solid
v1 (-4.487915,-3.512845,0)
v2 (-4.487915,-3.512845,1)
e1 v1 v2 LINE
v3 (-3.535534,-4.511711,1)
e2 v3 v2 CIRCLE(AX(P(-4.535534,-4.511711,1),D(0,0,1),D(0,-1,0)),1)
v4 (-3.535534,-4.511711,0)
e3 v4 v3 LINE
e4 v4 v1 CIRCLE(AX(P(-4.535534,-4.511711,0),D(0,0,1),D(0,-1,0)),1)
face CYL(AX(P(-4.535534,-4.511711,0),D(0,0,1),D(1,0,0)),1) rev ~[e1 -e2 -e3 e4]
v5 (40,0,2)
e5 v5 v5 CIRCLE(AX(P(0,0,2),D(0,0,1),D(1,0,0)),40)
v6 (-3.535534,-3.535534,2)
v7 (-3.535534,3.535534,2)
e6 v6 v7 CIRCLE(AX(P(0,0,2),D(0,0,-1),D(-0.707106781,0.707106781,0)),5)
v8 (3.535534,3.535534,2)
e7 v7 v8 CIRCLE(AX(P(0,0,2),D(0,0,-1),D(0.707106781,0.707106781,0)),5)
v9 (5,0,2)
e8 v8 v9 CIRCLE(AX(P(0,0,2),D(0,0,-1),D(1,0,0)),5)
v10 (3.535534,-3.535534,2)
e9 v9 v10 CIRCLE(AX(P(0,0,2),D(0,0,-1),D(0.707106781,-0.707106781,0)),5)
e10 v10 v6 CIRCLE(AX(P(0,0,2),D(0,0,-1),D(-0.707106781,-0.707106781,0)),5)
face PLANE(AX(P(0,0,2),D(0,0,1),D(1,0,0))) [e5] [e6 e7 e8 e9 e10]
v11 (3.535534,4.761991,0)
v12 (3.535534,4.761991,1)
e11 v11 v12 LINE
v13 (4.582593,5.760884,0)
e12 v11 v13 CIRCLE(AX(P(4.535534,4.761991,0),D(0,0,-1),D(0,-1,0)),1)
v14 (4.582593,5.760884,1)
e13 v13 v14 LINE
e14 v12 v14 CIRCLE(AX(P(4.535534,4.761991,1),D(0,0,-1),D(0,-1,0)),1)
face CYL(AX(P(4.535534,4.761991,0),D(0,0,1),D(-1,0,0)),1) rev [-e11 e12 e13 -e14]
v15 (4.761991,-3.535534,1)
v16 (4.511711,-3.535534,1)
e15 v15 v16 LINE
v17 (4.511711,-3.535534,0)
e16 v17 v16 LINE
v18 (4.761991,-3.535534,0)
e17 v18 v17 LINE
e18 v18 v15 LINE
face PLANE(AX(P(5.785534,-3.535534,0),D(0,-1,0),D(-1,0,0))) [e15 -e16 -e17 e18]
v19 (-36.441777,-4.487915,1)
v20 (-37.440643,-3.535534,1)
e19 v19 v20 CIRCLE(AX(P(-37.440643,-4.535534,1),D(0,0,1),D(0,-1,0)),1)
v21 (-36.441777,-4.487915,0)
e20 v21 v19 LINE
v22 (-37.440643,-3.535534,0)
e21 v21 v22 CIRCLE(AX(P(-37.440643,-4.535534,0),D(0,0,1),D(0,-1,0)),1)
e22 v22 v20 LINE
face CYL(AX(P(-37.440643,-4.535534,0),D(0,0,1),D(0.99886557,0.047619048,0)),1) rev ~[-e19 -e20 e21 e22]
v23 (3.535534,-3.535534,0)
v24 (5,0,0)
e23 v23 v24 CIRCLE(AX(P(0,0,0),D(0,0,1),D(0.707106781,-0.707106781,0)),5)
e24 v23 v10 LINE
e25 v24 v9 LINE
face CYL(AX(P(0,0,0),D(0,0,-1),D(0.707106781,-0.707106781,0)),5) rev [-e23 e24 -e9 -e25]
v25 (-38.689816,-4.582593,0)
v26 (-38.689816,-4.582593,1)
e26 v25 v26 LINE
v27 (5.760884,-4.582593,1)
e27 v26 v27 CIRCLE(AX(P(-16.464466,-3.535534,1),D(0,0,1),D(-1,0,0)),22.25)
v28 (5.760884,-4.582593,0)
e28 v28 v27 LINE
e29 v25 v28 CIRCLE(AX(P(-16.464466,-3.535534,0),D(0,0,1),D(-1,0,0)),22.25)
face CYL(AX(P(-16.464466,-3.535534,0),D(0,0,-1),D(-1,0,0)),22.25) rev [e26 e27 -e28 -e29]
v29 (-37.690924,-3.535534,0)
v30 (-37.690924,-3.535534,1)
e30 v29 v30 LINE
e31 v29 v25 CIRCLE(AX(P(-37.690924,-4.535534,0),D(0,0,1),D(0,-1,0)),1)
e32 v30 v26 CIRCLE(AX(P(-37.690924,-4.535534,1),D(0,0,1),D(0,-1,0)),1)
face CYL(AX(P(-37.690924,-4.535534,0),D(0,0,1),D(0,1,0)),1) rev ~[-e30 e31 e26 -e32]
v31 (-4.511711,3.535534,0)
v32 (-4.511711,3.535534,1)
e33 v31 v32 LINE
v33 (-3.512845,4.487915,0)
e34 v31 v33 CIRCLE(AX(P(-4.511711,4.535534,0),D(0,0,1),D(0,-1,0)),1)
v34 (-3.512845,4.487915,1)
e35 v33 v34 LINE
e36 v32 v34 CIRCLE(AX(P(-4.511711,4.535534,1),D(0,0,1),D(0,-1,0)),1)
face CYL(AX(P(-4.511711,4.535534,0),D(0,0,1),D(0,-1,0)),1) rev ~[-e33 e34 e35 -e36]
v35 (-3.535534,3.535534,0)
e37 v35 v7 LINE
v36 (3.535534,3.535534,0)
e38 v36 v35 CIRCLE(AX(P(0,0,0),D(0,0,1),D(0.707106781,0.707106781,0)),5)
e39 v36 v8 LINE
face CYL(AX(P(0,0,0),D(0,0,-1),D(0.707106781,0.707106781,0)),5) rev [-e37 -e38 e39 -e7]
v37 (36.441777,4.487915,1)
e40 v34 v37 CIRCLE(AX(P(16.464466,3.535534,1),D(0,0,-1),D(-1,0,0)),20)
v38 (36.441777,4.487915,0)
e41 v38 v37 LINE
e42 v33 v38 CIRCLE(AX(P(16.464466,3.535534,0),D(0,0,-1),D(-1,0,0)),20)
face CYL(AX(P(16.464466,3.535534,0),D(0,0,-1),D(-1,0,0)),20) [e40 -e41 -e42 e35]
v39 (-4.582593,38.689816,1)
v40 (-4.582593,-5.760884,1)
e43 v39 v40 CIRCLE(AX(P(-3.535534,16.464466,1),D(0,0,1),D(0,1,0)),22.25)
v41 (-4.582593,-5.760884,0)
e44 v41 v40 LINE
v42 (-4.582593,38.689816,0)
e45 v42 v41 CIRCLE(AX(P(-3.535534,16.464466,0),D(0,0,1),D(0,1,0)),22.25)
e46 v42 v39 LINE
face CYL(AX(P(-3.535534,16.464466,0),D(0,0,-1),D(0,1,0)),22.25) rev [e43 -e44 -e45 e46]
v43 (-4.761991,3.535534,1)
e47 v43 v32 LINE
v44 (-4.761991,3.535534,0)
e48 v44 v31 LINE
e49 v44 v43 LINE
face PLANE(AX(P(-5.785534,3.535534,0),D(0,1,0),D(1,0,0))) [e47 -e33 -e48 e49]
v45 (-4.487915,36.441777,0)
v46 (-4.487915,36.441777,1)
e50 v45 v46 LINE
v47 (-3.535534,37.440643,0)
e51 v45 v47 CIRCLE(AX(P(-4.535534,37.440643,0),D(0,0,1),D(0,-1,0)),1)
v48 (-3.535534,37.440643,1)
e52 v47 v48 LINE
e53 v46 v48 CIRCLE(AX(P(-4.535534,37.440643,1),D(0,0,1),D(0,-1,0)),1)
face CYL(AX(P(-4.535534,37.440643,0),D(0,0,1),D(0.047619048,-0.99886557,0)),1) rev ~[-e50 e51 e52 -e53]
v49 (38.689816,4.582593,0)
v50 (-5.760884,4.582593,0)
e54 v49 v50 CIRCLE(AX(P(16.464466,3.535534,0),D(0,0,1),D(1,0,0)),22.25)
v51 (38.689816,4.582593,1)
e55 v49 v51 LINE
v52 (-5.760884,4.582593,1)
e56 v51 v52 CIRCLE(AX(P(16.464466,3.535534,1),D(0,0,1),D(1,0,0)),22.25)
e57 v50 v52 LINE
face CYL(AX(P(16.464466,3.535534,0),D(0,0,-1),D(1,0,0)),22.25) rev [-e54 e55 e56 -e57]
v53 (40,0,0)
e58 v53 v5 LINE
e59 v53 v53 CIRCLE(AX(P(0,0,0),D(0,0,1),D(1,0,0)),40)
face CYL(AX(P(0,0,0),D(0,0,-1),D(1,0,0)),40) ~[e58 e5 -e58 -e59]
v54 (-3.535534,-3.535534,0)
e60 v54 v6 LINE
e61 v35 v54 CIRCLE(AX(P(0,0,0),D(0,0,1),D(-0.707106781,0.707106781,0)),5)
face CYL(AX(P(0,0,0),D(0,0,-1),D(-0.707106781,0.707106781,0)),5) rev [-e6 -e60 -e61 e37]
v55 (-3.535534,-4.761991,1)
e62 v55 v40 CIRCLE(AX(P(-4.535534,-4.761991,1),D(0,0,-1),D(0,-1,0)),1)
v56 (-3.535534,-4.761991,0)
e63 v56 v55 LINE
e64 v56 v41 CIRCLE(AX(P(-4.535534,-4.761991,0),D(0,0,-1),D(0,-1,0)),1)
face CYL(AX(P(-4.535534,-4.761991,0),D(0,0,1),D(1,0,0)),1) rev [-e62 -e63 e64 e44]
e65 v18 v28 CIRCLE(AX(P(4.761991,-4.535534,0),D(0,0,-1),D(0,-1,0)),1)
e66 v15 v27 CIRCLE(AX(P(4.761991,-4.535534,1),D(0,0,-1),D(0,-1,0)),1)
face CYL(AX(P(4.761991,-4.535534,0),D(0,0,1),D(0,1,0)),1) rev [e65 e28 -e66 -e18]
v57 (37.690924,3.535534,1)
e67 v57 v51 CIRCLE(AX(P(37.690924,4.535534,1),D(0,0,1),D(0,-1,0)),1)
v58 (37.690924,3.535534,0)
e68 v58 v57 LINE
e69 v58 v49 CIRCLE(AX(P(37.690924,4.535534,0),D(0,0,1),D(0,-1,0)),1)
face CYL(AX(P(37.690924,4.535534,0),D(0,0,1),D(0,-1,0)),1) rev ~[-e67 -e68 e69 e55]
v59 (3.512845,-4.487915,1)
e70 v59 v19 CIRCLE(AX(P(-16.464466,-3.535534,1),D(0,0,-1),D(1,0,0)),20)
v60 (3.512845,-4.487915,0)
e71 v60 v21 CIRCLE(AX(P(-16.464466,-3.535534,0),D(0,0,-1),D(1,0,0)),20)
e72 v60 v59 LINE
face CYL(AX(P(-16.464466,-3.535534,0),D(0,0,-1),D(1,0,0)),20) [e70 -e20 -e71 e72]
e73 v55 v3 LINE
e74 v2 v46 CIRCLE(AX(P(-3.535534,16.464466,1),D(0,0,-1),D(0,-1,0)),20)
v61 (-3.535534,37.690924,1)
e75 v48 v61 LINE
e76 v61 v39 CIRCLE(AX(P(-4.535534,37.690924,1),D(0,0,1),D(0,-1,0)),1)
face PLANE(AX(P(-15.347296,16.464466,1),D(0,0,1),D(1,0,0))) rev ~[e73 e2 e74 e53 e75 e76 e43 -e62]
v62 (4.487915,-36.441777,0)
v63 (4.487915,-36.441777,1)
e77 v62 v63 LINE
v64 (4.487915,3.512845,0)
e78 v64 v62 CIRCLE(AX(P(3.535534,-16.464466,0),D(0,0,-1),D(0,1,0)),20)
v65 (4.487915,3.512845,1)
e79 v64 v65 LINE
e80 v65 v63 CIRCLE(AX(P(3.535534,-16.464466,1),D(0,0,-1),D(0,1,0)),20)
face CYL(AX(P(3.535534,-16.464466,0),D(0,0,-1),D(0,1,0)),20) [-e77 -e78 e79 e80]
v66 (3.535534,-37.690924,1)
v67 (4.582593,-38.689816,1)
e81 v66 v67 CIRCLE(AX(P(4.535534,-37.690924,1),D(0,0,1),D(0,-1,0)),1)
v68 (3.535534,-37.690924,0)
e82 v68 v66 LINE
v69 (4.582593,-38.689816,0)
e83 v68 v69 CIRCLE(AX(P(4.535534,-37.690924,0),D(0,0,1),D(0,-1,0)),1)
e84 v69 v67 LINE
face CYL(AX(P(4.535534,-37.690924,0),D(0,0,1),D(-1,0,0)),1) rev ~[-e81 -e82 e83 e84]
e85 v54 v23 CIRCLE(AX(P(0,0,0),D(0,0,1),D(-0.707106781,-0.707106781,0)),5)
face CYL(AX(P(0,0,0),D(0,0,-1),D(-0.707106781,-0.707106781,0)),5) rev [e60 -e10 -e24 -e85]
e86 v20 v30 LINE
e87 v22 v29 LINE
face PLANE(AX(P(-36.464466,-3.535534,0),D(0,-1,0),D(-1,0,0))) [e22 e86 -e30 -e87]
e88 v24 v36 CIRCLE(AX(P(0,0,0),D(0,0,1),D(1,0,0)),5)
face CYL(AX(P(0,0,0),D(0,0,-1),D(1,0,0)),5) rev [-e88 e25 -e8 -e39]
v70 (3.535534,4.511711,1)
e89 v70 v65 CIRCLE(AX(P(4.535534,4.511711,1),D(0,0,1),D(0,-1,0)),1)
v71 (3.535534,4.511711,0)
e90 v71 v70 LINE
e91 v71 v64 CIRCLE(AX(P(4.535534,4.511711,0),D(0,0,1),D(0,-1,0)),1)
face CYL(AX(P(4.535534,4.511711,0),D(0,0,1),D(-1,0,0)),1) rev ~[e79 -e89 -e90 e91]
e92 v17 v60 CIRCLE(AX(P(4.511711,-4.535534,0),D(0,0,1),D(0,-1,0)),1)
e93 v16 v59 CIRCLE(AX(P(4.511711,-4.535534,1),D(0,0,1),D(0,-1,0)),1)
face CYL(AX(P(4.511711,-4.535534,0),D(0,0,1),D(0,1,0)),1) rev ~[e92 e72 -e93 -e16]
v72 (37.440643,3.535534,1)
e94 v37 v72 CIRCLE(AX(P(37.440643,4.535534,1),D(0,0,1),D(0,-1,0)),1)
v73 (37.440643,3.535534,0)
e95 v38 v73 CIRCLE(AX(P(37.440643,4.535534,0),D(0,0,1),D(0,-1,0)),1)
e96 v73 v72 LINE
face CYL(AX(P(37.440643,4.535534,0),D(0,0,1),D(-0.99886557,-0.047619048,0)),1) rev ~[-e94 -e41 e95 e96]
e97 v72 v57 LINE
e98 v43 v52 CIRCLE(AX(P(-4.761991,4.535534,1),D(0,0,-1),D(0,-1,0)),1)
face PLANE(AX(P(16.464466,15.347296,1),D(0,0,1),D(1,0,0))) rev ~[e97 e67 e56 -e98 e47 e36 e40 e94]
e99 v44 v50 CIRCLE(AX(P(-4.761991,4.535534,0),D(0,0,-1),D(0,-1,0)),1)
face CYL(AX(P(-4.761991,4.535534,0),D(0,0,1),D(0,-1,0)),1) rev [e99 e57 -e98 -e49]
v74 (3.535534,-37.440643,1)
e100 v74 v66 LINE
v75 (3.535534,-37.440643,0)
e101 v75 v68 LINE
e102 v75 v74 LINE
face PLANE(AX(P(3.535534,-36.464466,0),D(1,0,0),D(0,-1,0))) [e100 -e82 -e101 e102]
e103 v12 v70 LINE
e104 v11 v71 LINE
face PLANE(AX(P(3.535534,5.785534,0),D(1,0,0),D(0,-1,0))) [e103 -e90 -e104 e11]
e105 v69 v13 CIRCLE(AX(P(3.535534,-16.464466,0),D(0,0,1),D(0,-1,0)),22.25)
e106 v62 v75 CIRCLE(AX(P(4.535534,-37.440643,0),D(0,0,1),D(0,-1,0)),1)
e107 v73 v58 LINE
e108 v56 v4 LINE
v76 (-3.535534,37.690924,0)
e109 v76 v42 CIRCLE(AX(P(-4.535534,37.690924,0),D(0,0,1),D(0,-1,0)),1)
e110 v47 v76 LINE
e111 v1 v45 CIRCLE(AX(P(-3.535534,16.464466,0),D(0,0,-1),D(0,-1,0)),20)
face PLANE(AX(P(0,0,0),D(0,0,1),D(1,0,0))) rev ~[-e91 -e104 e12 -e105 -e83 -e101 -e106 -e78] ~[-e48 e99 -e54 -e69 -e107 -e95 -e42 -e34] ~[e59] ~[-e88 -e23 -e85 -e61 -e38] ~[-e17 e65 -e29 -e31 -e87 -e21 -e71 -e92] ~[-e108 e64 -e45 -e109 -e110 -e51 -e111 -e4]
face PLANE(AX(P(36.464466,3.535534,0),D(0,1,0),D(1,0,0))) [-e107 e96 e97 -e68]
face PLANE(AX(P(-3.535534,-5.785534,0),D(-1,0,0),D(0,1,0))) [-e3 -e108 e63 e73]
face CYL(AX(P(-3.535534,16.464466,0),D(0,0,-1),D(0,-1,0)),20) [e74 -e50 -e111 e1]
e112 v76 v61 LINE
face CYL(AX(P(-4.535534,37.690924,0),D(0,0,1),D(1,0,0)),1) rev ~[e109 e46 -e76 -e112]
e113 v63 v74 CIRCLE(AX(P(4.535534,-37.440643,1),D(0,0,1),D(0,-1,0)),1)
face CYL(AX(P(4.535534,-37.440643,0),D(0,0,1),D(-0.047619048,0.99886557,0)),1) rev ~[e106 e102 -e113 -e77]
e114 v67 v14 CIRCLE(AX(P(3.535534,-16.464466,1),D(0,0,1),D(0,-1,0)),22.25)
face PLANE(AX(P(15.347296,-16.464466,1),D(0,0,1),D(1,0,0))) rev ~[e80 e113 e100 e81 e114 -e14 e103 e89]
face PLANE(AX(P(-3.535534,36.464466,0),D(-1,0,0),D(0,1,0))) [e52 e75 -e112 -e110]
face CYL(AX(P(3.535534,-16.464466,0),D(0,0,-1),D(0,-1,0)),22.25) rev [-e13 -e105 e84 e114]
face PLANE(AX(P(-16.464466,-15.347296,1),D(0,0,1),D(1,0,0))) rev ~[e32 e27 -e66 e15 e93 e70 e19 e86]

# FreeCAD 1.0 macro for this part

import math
import FreeCAD as App
import Part
import Sketcher
Q = App.Units.Quantity


def edges_at(feature, points):
    """Names of the edges that pass closest to the given points."""
    edges = feature.Shape.Edges
    near = lambda p: min(range(len(edges)), key=lambda i: edges[i].distToShape(Part.Vertex(*p))[0])
    return sorted({f"Edge{near(p) + 1}" for p in points})

doc = App.newDocument("Part")
body = doc.addObject("PartDesign::Body", "Body")

# Sketch on XY plane
sketch1 = body.newObject("Sketcher::SketchObject", "Sketch")
sketch1.AttachmentSupport = (doc.getObject("XY_Plane"), [""])
sketch1.MapMode = "FlatFace"
sketch1.addGeometry(Part.Circle(App.Vector(0, 0, 0), App.Vector(0, 0, 1), 40), False)
sketch1.addConstraint([
    Sketcher.Constraint("Coincident", 0, 3, -1, 1),
    Sketcher.Constraint("Diameter", 0, Q("80 mm")),
])
pad1 = body.newObject("PartDesign::Pad", "Pad")
pad1.Profile = sketch1
pad1.Length = 2

# Sketch on XY plane
sketch2 = body.newObject("Sketcher::SketchObject", "Sketch001")
sketch2.AttachmentSupport = (doc.getObject("XY_Plane"), [""])
sketch2.MapMode = "FlatFace"
sketch2.addGeometry([
    Part.LineSegment(App.Vector(-5.8, 3.5, 0), App.Vector(-3.5, 3.5, 0)),  # 0
    Part.ArcOfCircle(Part.Circle(App.Vector(16.5, 3.5, 0), App.Vector(0, 0, 1), 20), math.radians(0), math.radians(180)),  # 1
    Part.LineSegment(App.Vector(36.5, 3.5, 0), App.Vector(38.7, 3.5, 0)),  # 2
    Part.ArcOfCircle(Part.Circle(App.Vector(16.5, 3.5, 0), App.Vector(0, 0, 1), 22.2), math.radians(0), math.radians(180)),  # 3
    Part.LineSegment(App.Vector(3.5, 5.8, 0), App.Vector(3.5, 3.5, 0)),  # 4
    Part.ArcOfCircle(Part.Circle(App.Vector(3.5, -16.5, 0), App.Vector(0, 0, 1), 20), math.radians(-90), math.radians(90)),  # 5
    Part.LineSegment(App.Vector(3.5, -36.5, 0), App.Vector(3.5, -38.7, 0)),  # 6
    Part.ArcOfCircle(Part.Circle(App.Vector(3.5, -16.5, 0), App.Vector(0, 0, 1), 22.2), math.radians(-90), math.radians(90)),  # 7
    Part.LineSegment(App.Vector(5.8, -3.5, 0), App.Vector(3.5, -3.5, 0)),  # 8
    Part.ArcOfCircle(Part.Circle(App.Vector(-16.5, -3.5, 0), App.Vector(0, 0, 1), 20), math.radians(180), math.radians(360)),  # 9
    Part.LineSegment(App.Vector(-36.5, -3.5, 0), App.Vector(-38.7, -3.5, 0)),  # 10
    Part.ArcOfCircle(Part.Circle(App.Vector(-16.5, -3.5, 0), App.Vector(0, 0, 1), 22.2), math.radians(180), math.radians(360)),  # 11
    Part.LineSegment(App.Vector(-3.5, -5.8, 0), App.Vector(-3.5, -3.5, 0)),  # 12
    Part.ArcOfCircle(Part.Circle(App.Vector(-3.5, 16.5, 0), App.Vector(0, 0, 1), 20), math.radians(90), math.radians(270)),  # 13
    Part.LineSegment(App.Vector(-3.5, 36.5, 0), App.Vector(-3.5, 38.7, 0)),  # 14
    Part.ArcOfCircle(Part.Circle(App.Vector(-3.5, 16.5, 0), App.Vector(0, 0, 1), 22.2), math.radians(90), math.radians(270)),  # 15
], False)
sketch2.addConstraint([
    Sketcher.Constraint("Coincident", 0, 2, 1, 2),
    Sketcher.Constraint("Coincident", 1, 1, 2, 1),
    Sketcher.Constraint("Coincident", 2, 2, 3, 1),
    Sketcher.Constraint("Coincident", 3, 2, 0, 1),
    Sketcher.Constraint("Coincident", 4, 2, 5, 2),
    Sketcher.Constraint("Coincident", 5, 1, 6, 1),
    Sketcher.Constraint("Coincident", 6, 2, 7, 1),
    Sketcher.Constraint("Coincident", 7, 2, 4, 1),
    Sketcher.Constraint("Coincident", 8, 2, 9, 2),
    Sketcher.Constraint("Coincident", 9, 1, 10, 1),
    Sketcher.Constraint("Coincident", 10, 2, 11, 1),
    Sketcher.Constraint("Coincident", 11, 2, 8, 1),
    Sketcher.Constraint("Coincident", 12, 2, 13, 2),
    Sketcher.Constraint("Coincident", 13, 1, 14, 1),
    Sketcher.Constraint("Coincident", 14, 2, 15, 1),
    Sketcher.Constraint("Coincident", 15, 2, 12, 1),
    Sketcher.Constraint("Horizontal", 0),
    Sketcher.Constraint("Horizontal", 2),
    Sketcher.Constraint("Vertical", 4),
    Sketcher.Constraint("Vertical", 6),
    Sketcher.Constraint("Horizontal", 8),
    Sketcher.Constraint("Horizontal", 10),
    Sketcher.Constraint("Vertical", 12),
    Sketcher.Constraint("Vertical", 14),
    Sketcher.Constraint("Coincident", 3, 3, 1, 3),
    Sketcher.Constraint("Coincident", 7, 3, 5, 3),
    Sketcher.Constraint("Coincident", 11, 3, 9, 3),
    Sketcher.Constraint("Coincident", 15, 3, 13, 3),
    Sketcher.Constraint("Equal", 1, 5),
    Sketcher.Constraint("Equal", 3, 7),
    Sketcher.Constraint("Equal", 5, 9),
    Sketcher.Constraint("Equal", 7, 11),
    Sketcher.Constraint("Equal", 9, 13),
    Sketcher.Constraint("Equal", 11, 15),
    Sketcher.Constraint("Symmetric", 1, 3, 9, 3, -1, 1),
    Sketcher.Constraint("Symmetric", 5, 3, 13, 3, -1, 1),
    Sketcher.Constraint("Symmetric", 0, 2, 4, 2, -2),
    Sketcher.Constraint("Symmetric", 8, 2, 12, 2, -2),
    Sketcher.Constraint("Horizontal", 3, 3, 0, 2),
    Sketcher.Constraint("Horizontal", 0, 2, 1, 1),
    Sketcher.Constraint("Horizontal", 8, 2, 9, 1),
    Sketcher.Constraint("Vertical", 15, 3, 0, 2),
    Sketcher.Constraint("Vertical", 4, 2, 5, 1),
    Sketcher.Constraint("Vertical", 12, 2, 13, 1),
    Sketcher.Constraint("Radius", 1, Q("20 mm")),
    Sketcher.Constraint("Radius", 3, Q("22.25 mm")),
    Sketcher.Constraint("DistanceX", -1, 1, 1, 3, Q("16.464466 mm")),
    Sketcher.Constraint("DistanceY", -1, 1, 1, 3, Q("3.535534 mm")),
])
pocket1 = body.newObject("PartDesign::Pocket", "Pocket")
pocket1.Profile = sketch2
pocket1.Length = 1
pocket1.Reversed = True
doc.recompute()

fillet = body.newObject("PartDesign::Fillet", "Fillet")
fillet.Base = (pocket1, edges_at(pocket1, [
    (-5.786, 3.536, 0.5),
    (-3.536, 3.536, 0.5),
    (-3.536, -5.786, 0.5),
    (-3.536, -3.536, 0.5),
    (5.786, -3.536, 0.5),
    (3.536, -3.536, 0.5),
    (3.536, 5.786, 0.5),
    (3.536, 3.536, 0.5),
    (3.536, -38.714, 0.5),
    (3.536, -36.464, 0.5),
    (-38.714, -3.536, 0.5),
    (-36.464, -3.536, 0.5),
    (-3.536, 38.714, 0.5),
    (-3.536, 36.464, 0.5),
    (38.714, 3.536, 0.5),
    (36.464, 3.536, 0.5),
]))
fillet.Radius = 1

# Sketch on XY plane
sketch3 = body.newObject("Sketcher::SketchObject", "Sketch002")
sketch3.AttachmentSupport = (doc.getObject("XY_Plane"), [""])
sketch3.MapMode = "FlatFace"
sketch3.addGeometry([
    Part.ArcOfCircle(Part.Circle(App.Vector(0, 0, 0), App.Vector(0, 0, 1), 5), math.radians(-135), math.radians(-45)),  # 0
    Part.ArcOfCircle(Part.Circle(App.Vector(0, 0, 0), App.Vector(0, 0, 1), 5), math.radians(-45), math.radians(0)),  # 1
    Part.ArcOfCircle(Part.Circle(App.Vector(0, 0, 0), App.Vector(0, 0, 1), 5), math.radians(0), math.radians(45)),  # 2
    Part.ArcOfCircle(Part.Circle(App.Vector(0, 0, 0), App.Vector(0, 0, 1), 5), math.radians(45), math.radians(135)),  # 3
    Part.ArcOfCircle(Part.Circle(App.Vector(0, 0, 0), App.Vector(0, 0, 1), 5), math.radians(135), math.radians(225)),  # 4
], False)
sketch3.addConstraint([
    Sketcher.Constraint("Tangent", 0, 2, 1, 1),
    Sketcher.Constraint("Tangent", 1, 2, 2, 1),
    Sketcher.Constraint("Tangent", 2, 2, 3, 1),
    Sketcher.Constraint("Tangent", 3, 2, 4, 1),
    Sketcher.Constraint("Tangent", 4, 2, 0, 1),
    Sketcher.Constraint("Coincident", 0, 3, -1, 1),
    Sketcher.Constraint("Coincident", 2, 3, -1, 1),
    Sketcher.Constraint("PointOnObject", 1, 2, -1),
    Sketcher.Constraint("Horizontal", 2, 2, 3, 2),
    Sketcher.Constraint("Horizontal", 0, 2, 4, 2),
    Sketcher.Constraint("Vertical", 0, 2, 2, 2),
    Sketcher.Constraint("Radius", 0, Q("5 mm")),
    Sketcher.Constraint("DistanceX", -1, 1, 0, 2, Q("3.535534 mm")),
])
pocket2 = body.newObject("PartDesign::Pocket", "Pocket001")
pocket2.Profile = sketch3
pocket2.Length = 25
pocket2.Reversed = True

doc.recompute()
